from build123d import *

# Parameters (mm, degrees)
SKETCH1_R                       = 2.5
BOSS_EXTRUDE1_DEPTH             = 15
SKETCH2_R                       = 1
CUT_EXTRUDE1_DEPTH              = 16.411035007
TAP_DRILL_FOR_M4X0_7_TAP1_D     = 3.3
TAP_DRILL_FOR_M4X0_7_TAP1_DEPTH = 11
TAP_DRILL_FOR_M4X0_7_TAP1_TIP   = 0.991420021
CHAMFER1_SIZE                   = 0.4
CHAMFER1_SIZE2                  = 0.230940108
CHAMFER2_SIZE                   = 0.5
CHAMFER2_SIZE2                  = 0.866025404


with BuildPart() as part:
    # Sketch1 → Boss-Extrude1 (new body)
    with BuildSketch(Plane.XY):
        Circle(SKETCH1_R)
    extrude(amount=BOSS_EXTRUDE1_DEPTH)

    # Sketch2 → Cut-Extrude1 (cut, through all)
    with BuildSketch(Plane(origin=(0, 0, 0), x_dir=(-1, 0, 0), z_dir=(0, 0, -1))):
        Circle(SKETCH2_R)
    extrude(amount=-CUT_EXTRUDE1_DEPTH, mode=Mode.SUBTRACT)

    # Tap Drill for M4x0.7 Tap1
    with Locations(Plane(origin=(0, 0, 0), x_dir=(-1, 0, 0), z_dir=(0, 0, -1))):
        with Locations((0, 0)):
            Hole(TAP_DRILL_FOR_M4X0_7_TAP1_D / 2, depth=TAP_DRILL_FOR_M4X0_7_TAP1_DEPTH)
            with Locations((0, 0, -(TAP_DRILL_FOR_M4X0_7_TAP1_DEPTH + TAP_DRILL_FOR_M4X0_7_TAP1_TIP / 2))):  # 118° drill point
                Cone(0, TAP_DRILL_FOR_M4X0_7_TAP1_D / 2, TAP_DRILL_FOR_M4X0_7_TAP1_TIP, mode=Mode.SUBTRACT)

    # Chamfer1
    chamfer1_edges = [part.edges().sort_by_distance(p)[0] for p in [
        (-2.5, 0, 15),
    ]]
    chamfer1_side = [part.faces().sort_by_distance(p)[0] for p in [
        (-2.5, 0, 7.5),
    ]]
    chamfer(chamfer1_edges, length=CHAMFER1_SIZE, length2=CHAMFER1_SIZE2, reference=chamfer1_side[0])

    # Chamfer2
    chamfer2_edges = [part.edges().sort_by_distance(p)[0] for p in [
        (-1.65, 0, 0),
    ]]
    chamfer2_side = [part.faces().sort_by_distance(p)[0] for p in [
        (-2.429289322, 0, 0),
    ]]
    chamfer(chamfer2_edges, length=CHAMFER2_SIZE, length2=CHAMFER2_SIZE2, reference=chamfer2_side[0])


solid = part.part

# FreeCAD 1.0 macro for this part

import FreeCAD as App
import Part
import Sketcher
from FreeCAD import Vector
Q = App.Units.Quantity


def edges_at(feature, points):
    """Names of the edges that pass closest to the given points."""
    edges = feature.Shape.Edges
    near = lambda p: min(range(len(edges)), key=lambda i: edges[i].distToShape(Part.Vertex(*p))[0])
    return sorted({f"Edge{near(p) + 1}" for p in points})

doc = App.newDocument("Part")
body = doc.addObject("PartDesign::Body", "Body")

# Sketch on XY plane
sketch1 = body.newObject("Sketcher::SketchObject", "Sketch")
sketch1.AttachmentSupport = (doc.getObject("XY_Plane"), [""])
sketch1.MapMode = "FlatFace"
sketch1.addGeometry(Part.Circle(Vector(0, 0, 0), Vector(0, 0, 1), 2.5), False)
sketch1.addConstraint(Sketcher.Constraint("Coincident", 0, 3, -1, 1))
sketch1.addConstraint(Sketcher.Constraint("Diameter", 0, Q("5 mm")))
pad1 = body.newObject("PartDesign::Pad", "Pad")
pad1.Profile = sketch1
pad1.Length = 15

# Sketch on XY plane
sketch2 = body.newObject("Sketcher::SketchObject", "Sketch001")
sketch2.AttachmentSupport = (doc.getObject("XY_Plane"), [""])
sketch2.MapMode = "FlatFace"
sketch2.addGeometry(Part.Circle(Vector(0, 0, 0), Vector(0, 0, 1), 1), False)
sketch2.addConstraint(Sketcher.Constraint("Coincident", 0, 3, -1, 1))
sketch2.addConstraint(Sketcher.Constraint("Diameter", 0, Q("2 mm")))
pocket1 = body.newObject("PartDesign::Pocket", "Pocket")
pocket1.Profile = sketch2
pocket1.Type = "ThroughAll"
pocket1.Reversed = True

# Sketch on XY plane
sketch3 = body.newObject("Sketcher::SketchObject", "Sketch002")
sketch3.AttachmentSupport = (doc.getObject("XY_Plane"), [""])
sketch3.MapMode = "FlatFace"
sketch3.addGeometry(Part.Circle(Vector(0, 0, 0), Vector(0, 0, 1), 1.6), False)
sketch3.addConstraint(Sketcher.Constraint("Coincident", 0, 3, -1, 1))
sketch3.addConstraint(Sketcher.Constraint("Diameter", 0, Q("3.3 mm")))
doc.recompute()
hole = body.newObject("PartDesign::Hole", "Hole")
hole.Profile = sketch3
hole.ThreadType = "None"
hole.Diameter = 3.3
hole.DepthType = "Dimension"
hole.Depth = 11
hole.DrillPoint = "Angled"
hole.DrillPointAngle = 118
hole.Reversed = True
doc.recompute()

chamfer = body.newObject("PartDesign::Chamfer", "Chamfer")
chamfer.Base = (hole, edges_at(hole, [(-2.5, 0, 15)]))
chamfer.ChamferType = "Two distances"
chamfer.Size = 0.4
chamfer.Size2 = 0.23094
doc.recompute()

chamfer2 = body.newObject("PartDesign::Chamfer", "Chamfer001")
chamfer2.Base = (chamfer, edges_at(chamfer, [(-1.65, 0, 0)]))
chamfer2.ChamferType = "Two distances"
chamfer2.Size = 0.5
chamfer2.Size2 = 0.866025

doc.recompute()
